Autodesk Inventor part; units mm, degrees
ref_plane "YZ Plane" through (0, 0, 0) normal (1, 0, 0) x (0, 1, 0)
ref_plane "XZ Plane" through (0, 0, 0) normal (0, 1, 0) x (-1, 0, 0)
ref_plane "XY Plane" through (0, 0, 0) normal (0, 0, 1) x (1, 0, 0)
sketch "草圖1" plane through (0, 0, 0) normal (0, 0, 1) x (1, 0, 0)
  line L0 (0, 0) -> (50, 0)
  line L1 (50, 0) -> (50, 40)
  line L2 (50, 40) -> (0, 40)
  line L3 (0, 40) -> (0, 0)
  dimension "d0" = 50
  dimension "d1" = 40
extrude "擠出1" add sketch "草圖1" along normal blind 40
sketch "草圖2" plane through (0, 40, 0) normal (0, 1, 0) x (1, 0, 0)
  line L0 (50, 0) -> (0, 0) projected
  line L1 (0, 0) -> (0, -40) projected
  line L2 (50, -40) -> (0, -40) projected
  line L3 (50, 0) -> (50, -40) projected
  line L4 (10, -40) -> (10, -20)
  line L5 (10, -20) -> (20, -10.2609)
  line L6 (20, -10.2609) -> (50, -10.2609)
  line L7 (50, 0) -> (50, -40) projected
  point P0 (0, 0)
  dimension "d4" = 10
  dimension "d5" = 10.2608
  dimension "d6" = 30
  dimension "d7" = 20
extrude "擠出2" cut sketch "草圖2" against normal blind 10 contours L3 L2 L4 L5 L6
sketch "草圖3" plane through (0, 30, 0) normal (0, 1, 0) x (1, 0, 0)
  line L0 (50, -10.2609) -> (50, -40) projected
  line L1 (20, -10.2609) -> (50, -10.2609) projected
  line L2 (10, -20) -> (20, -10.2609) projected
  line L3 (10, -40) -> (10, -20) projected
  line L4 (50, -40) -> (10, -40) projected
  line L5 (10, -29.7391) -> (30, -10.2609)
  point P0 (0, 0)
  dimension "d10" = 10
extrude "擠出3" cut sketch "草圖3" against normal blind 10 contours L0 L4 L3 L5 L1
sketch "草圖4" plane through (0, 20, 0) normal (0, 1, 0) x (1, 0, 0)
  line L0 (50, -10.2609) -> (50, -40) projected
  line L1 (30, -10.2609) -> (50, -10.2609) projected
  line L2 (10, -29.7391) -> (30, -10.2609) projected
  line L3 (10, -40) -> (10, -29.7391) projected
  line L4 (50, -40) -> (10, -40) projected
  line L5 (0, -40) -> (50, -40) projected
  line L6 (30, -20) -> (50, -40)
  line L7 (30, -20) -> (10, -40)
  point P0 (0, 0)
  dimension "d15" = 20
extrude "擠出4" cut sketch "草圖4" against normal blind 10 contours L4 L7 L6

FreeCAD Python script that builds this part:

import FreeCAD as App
import Part
import Sketcher


def add_polygon(sketch, points):
    """Adds a closed chain of lines whose ends are joined by coincident constraints."""
    first, n = sketch.GeometryCount, len(points)
    for a, b in zip(points, points[1:] + points[:1]):
        sketch.addGeometry(Part.LineSegment(App.Vector(*a, 0), App.Vector(*b, 0)), False)
    for i in range(n):
        sketch.addConstraint(Sketcher.Constraint("Coincident", first + i, 2, first + (i + 1) % n, 1))

doc = App.newDocument("Part")
body = doc.addObject("PartDesign::Body", "Body")

# Sketch on XY plane
sketch1 = body.newObject("Sketcher::SketchObject", "Sketch")
sketch1.AttachmentSupport = (doc.getObject("XY_Plane"), [""])
sketch1.MapMode = "FlatFace"
add_polygon(sketch1, [(0, 40), (0, 0), (50, 0), (50, 40)])  # lines 0-3
sketch1.addConstraint([
    Sketcher.Constraint("Vertical", 0),
    Sketcher.Constraint("Horizontal", 1),
    Sketcher.Constraint("Vertical", 2),
    Sketcher.Constraint("Horizontal", 3),
    Sketcher.Constraint("Coincident", 0, 2, -1, 1),
    Sketcher.Constraint("DistanceX", 1, 1, 1, 2, 50.0),
    Sketcher.Constraint("DistanceY", 0, 2, 0, 1, 40.0),
])
pad1 = body.newObject("PartDesign::Pad", "Pad")
pad1.Profile = sketch1
pad1.Length = 40

# Sketch on XZ plane
sketch2 = body.newObject("Sketcher::SketchObject", "Sketch001")
sketch2.AttachmentSupport = (doc.getObject("XZ_Plane"), [""])
sketch2.MapMode = "FlatFace"
sketch2.AttachmentOffset = App.Placement(App.Vector(0, 0, -40), App.Rotation())
add_polygon(sketch2, [(50, 40), (50, 10.2609), (20, 10.2609), (10, 20), (10, 40)])  # lines 0-4
sketch2.addConstraint([
    Sketcher.Constraint("Vertical", 0),
    Sketcher.Constraint("Horizontal", 1),
    Sketcher.Constraint("Vertical", 3),
    Sketcher.Constraint("Horizontal", 4),
    Sketcher.Constraint("DistanceX", 1, 2, 1, 1, 30.0),
    Sketcher.Constraint("DistanceY", 3, 1, 3, 2, 20.0),
    Sketcher.Constraint("DistanceX", -1, 1, 1, 2, 20.0),
    Sketcher.Constraint("DistanceX", -1, 1, 2, 2, 10.0),
    Sketcher.Constraint("DistanceY", -1, 1, 2, 2, 20.0),
    Sketcher.Constraint("DistanceY", -1, 1, 0, 2, 10.261),
])
pocket1 = body.newObject("PartDesign::Pocket", "Pocket")
pocket1.Profile = sketch2
pocket1.Length = 10
pocket1.Reversed = True

# Sketch on XZ plane
sketch3 = body.newObject("Sketcher::SketchObject", "Sketch002")
sketch3.AttachmentSupport = (doc.getObject("XZ_Plane"), [""])
sketch3.MapMode = "FlatFace"
sketch3.AttachmentOffset = App.Placement(App.Vector(0, 0, -30), App.Rotation())
add_polygon(sketch3, [(50, 40), (50, 10.2609), (30, 10.2609), (10, 29.7391), (10, 40)])  # lines 0-4
sketch3.addConstraint([
    Sketcher.Constraint("Vertical", 0),
    Sketcher.Constraint("Horizontal", 1),
    Sketcher.Constraint("Vertical", 3),
    Sketcher.Constraint("Horizontal", 4),
    Sketcher.Constraint("DistanceX", -1, 1, 2, 2, 10.0),
    Sketcher.Constraint("DistanceX", 1, 2, 1, 1, 20.0),
    Sketcher.Constraint("DistanceX", 4, 1, 4, 2, 40.0),
    Sketcher.Constraint("DistanceY", -1, 1, 3, 2, 40.0),
    Sketcher.Constraint("DistanceY", 0, 2, 0, 1, 29.739),
    Sketcher.Constraint("DistanceY", 3, 1, 3, 2, 10.261),
])
pocket2 = body.newObject("PartDesign::Pocket", "Pocket001")
pocket2.Profile = sketch3
pocket2.Length = 10
pocket2.Reversed = True

# Sketch on XZ plane
sketch4 = body.newObject("Sketcher::SketchObject", "Sketch003")
sketch4.AttachmentSupport = (doc.getObject("XZ_Plane"), [""])
sketch4.MapMode = "FlatFace"
sketch4.AttachmentOffset = App.Placement(App.Vector(0, 0, -20), App.Rotation())
add_polygon(sketch4, [(10, 40), (50, 40), (30, 20)])  # lines 0-2
sketch4.addConstraint([
    Sketcher.Constraint("Horizontal", 0),
    Sketcher.Constraint("Perpendicular", 1, 2),
    Sketcher.Constraint("Equal", 1, 2),
    Sketcher.Constraint("DistanceY", -1, 1, 1, 2, 20.0),
    Sketcher.Constraint("DistanceX", 1, 2, 0, 2, 20.0),
    Sketcher.Constraint("DistanceX", -1, 1, 0, 2, 50.0),
])
pocket3 = body.newObject("PartDesign::Pocket", "Pocket002")
pocket3.Profile = sketch4
pocket3.Length = 10
pocket3.Reversed = True

doc.recompute()
